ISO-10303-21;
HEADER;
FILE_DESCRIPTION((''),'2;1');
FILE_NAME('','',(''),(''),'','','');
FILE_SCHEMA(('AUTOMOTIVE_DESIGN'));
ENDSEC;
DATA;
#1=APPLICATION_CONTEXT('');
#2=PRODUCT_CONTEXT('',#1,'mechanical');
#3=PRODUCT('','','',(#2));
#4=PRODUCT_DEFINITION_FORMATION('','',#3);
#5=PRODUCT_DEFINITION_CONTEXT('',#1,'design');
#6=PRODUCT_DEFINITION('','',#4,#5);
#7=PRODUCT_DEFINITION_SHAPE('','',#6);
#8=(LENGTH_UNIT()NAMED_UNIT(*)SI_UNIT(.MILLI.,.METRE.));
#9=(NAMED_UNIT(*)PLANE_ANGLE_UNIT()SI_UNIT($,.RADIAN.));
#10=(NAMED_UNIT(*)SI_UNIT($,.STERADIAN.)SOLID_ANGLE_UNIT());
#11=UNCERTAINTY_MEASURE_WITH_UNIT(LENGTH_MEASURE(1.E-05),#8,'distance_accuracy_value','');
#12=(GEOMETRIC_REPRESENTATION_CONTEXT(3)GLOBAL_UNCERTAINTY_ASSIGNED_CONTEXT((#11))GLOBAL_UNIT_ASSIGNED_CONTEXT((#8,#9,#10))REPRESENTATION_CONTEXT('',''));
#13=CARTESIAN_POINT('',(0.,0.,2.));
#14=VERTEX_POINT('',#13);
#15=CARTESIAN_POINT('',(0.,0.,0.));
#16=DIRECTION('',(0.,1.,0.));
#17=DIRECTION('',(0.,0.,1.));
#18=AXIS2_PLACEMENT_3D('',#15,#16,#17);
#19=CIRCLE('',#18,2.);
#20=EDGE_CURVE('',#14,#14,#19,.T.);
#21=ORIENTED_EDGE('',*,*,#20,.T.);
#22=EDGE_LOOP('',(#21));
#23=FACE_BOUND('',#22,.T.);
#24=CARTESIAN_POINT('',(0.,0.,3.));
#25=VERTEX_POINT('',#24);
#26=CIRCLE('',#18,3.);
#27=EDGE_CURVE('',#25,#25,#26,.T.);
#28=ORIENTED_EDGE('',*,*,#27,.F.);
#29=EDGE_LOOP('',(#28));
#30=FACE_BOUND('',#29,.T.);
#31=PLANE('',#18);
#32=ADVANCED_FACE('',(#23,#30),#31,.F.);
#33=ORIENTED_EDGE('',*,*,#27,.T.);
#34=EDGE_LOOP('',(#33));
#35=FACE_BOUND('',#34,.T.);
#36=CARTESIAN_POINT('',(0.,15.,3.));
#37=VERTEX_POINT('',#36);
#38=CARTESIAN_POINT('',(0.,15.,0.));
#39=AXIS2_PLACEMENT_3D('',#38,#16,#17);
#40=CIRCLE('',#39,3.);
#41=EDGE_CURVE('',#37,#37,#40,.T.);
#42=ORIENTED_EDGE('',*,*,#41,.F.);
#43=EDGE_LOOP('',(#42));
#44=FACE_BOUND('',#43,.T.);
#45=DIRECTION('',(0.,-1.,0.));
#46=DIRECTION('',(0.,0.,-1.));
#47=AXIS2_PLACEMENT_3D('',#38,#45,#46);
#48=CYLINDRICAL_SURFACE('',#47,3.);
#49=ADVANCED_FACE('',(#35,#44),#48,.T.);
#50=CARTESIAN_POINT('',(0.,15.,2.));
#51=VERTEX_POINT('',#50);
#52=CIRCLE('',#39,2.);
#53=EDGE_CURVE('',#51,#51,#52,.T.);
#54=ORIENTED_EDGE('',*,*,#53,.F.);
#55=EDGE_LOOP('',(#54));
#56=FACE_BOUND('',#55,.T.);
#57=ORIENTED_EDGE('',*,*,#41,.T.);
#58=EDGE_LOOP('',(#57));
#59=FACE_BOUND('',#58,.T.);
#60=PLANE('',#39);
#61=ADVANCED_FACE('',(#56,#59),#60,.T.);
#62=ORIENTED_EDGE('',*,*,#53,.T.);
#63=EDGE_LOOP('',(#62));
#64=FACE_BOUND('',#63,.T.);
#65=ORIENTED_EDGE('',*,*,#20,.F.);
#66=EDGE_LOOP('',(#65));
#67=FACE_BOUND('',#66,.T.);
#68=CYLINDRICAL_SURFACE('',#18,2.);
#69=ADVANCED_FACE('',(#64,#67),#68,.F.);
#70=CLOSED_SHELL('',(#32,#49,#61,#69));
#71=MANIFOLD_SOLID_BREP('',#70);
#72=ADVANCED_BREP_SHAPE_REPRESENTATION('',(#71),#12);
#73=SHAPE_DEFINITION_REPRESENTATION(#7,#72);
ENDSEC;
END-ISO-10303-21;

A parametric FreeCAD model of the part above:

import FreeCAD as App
import Part
import Sketcher

V = App.Vector

doc = App.newDocument("Part")
body = doc.addObject("PartDesign::Body", "Body")

sketch1 = body.newObject("Sketcher::SketchObject", "Sketch")
sketch1.AttachmentSupport = (doc.getObject("XZ_Plane"), [""])
sketch1.MapMode = "FlatFace"
sketch1.addGeometry(Part.Circle(V(0, 0, 0), V(0, 0, 1), 3), False)
sketch1.addConstraint([
    Sketcher.Constraint("Coincident", 0, 3, -1, 1),
    Sketcher.Constraint("Diameter", 0, 6.0),
])
pad1 = body.newObject("PartDesign::Pad", "Pad")
pad1.Profile = sketch1
pad1.Length = 15
pad1.Reversed = True

sketch2 = body.newObject("Sketcher::SketchObject", "Sketch001")
sketch2.AttachmentSupport = (doc.getObject("XZ_Plane"), [""])
sketch2.MapMode = "FlatFace"
sketch2.AttachmentOffset = App.Placement(V(0, 0, -15), App.Rotation())
sketch2.addGeometry(Part.Circle(V(0, 0, 0), V(0, 0, 1), 2), False)
sketch2.addConstraint([
    Sketcher.Constraint("Coincident", 0, 3, -1, 1),
    Sketcher.Constraint("Diameter", 0, 4.0),
])
pocket1 = body.newObject("PartDesign::Pocket", "Pocket")
pocket1.Profile = sketch2
pocket1.Type = "ThroughAll"
pocket1.Reversed = True

doc.recompute()
